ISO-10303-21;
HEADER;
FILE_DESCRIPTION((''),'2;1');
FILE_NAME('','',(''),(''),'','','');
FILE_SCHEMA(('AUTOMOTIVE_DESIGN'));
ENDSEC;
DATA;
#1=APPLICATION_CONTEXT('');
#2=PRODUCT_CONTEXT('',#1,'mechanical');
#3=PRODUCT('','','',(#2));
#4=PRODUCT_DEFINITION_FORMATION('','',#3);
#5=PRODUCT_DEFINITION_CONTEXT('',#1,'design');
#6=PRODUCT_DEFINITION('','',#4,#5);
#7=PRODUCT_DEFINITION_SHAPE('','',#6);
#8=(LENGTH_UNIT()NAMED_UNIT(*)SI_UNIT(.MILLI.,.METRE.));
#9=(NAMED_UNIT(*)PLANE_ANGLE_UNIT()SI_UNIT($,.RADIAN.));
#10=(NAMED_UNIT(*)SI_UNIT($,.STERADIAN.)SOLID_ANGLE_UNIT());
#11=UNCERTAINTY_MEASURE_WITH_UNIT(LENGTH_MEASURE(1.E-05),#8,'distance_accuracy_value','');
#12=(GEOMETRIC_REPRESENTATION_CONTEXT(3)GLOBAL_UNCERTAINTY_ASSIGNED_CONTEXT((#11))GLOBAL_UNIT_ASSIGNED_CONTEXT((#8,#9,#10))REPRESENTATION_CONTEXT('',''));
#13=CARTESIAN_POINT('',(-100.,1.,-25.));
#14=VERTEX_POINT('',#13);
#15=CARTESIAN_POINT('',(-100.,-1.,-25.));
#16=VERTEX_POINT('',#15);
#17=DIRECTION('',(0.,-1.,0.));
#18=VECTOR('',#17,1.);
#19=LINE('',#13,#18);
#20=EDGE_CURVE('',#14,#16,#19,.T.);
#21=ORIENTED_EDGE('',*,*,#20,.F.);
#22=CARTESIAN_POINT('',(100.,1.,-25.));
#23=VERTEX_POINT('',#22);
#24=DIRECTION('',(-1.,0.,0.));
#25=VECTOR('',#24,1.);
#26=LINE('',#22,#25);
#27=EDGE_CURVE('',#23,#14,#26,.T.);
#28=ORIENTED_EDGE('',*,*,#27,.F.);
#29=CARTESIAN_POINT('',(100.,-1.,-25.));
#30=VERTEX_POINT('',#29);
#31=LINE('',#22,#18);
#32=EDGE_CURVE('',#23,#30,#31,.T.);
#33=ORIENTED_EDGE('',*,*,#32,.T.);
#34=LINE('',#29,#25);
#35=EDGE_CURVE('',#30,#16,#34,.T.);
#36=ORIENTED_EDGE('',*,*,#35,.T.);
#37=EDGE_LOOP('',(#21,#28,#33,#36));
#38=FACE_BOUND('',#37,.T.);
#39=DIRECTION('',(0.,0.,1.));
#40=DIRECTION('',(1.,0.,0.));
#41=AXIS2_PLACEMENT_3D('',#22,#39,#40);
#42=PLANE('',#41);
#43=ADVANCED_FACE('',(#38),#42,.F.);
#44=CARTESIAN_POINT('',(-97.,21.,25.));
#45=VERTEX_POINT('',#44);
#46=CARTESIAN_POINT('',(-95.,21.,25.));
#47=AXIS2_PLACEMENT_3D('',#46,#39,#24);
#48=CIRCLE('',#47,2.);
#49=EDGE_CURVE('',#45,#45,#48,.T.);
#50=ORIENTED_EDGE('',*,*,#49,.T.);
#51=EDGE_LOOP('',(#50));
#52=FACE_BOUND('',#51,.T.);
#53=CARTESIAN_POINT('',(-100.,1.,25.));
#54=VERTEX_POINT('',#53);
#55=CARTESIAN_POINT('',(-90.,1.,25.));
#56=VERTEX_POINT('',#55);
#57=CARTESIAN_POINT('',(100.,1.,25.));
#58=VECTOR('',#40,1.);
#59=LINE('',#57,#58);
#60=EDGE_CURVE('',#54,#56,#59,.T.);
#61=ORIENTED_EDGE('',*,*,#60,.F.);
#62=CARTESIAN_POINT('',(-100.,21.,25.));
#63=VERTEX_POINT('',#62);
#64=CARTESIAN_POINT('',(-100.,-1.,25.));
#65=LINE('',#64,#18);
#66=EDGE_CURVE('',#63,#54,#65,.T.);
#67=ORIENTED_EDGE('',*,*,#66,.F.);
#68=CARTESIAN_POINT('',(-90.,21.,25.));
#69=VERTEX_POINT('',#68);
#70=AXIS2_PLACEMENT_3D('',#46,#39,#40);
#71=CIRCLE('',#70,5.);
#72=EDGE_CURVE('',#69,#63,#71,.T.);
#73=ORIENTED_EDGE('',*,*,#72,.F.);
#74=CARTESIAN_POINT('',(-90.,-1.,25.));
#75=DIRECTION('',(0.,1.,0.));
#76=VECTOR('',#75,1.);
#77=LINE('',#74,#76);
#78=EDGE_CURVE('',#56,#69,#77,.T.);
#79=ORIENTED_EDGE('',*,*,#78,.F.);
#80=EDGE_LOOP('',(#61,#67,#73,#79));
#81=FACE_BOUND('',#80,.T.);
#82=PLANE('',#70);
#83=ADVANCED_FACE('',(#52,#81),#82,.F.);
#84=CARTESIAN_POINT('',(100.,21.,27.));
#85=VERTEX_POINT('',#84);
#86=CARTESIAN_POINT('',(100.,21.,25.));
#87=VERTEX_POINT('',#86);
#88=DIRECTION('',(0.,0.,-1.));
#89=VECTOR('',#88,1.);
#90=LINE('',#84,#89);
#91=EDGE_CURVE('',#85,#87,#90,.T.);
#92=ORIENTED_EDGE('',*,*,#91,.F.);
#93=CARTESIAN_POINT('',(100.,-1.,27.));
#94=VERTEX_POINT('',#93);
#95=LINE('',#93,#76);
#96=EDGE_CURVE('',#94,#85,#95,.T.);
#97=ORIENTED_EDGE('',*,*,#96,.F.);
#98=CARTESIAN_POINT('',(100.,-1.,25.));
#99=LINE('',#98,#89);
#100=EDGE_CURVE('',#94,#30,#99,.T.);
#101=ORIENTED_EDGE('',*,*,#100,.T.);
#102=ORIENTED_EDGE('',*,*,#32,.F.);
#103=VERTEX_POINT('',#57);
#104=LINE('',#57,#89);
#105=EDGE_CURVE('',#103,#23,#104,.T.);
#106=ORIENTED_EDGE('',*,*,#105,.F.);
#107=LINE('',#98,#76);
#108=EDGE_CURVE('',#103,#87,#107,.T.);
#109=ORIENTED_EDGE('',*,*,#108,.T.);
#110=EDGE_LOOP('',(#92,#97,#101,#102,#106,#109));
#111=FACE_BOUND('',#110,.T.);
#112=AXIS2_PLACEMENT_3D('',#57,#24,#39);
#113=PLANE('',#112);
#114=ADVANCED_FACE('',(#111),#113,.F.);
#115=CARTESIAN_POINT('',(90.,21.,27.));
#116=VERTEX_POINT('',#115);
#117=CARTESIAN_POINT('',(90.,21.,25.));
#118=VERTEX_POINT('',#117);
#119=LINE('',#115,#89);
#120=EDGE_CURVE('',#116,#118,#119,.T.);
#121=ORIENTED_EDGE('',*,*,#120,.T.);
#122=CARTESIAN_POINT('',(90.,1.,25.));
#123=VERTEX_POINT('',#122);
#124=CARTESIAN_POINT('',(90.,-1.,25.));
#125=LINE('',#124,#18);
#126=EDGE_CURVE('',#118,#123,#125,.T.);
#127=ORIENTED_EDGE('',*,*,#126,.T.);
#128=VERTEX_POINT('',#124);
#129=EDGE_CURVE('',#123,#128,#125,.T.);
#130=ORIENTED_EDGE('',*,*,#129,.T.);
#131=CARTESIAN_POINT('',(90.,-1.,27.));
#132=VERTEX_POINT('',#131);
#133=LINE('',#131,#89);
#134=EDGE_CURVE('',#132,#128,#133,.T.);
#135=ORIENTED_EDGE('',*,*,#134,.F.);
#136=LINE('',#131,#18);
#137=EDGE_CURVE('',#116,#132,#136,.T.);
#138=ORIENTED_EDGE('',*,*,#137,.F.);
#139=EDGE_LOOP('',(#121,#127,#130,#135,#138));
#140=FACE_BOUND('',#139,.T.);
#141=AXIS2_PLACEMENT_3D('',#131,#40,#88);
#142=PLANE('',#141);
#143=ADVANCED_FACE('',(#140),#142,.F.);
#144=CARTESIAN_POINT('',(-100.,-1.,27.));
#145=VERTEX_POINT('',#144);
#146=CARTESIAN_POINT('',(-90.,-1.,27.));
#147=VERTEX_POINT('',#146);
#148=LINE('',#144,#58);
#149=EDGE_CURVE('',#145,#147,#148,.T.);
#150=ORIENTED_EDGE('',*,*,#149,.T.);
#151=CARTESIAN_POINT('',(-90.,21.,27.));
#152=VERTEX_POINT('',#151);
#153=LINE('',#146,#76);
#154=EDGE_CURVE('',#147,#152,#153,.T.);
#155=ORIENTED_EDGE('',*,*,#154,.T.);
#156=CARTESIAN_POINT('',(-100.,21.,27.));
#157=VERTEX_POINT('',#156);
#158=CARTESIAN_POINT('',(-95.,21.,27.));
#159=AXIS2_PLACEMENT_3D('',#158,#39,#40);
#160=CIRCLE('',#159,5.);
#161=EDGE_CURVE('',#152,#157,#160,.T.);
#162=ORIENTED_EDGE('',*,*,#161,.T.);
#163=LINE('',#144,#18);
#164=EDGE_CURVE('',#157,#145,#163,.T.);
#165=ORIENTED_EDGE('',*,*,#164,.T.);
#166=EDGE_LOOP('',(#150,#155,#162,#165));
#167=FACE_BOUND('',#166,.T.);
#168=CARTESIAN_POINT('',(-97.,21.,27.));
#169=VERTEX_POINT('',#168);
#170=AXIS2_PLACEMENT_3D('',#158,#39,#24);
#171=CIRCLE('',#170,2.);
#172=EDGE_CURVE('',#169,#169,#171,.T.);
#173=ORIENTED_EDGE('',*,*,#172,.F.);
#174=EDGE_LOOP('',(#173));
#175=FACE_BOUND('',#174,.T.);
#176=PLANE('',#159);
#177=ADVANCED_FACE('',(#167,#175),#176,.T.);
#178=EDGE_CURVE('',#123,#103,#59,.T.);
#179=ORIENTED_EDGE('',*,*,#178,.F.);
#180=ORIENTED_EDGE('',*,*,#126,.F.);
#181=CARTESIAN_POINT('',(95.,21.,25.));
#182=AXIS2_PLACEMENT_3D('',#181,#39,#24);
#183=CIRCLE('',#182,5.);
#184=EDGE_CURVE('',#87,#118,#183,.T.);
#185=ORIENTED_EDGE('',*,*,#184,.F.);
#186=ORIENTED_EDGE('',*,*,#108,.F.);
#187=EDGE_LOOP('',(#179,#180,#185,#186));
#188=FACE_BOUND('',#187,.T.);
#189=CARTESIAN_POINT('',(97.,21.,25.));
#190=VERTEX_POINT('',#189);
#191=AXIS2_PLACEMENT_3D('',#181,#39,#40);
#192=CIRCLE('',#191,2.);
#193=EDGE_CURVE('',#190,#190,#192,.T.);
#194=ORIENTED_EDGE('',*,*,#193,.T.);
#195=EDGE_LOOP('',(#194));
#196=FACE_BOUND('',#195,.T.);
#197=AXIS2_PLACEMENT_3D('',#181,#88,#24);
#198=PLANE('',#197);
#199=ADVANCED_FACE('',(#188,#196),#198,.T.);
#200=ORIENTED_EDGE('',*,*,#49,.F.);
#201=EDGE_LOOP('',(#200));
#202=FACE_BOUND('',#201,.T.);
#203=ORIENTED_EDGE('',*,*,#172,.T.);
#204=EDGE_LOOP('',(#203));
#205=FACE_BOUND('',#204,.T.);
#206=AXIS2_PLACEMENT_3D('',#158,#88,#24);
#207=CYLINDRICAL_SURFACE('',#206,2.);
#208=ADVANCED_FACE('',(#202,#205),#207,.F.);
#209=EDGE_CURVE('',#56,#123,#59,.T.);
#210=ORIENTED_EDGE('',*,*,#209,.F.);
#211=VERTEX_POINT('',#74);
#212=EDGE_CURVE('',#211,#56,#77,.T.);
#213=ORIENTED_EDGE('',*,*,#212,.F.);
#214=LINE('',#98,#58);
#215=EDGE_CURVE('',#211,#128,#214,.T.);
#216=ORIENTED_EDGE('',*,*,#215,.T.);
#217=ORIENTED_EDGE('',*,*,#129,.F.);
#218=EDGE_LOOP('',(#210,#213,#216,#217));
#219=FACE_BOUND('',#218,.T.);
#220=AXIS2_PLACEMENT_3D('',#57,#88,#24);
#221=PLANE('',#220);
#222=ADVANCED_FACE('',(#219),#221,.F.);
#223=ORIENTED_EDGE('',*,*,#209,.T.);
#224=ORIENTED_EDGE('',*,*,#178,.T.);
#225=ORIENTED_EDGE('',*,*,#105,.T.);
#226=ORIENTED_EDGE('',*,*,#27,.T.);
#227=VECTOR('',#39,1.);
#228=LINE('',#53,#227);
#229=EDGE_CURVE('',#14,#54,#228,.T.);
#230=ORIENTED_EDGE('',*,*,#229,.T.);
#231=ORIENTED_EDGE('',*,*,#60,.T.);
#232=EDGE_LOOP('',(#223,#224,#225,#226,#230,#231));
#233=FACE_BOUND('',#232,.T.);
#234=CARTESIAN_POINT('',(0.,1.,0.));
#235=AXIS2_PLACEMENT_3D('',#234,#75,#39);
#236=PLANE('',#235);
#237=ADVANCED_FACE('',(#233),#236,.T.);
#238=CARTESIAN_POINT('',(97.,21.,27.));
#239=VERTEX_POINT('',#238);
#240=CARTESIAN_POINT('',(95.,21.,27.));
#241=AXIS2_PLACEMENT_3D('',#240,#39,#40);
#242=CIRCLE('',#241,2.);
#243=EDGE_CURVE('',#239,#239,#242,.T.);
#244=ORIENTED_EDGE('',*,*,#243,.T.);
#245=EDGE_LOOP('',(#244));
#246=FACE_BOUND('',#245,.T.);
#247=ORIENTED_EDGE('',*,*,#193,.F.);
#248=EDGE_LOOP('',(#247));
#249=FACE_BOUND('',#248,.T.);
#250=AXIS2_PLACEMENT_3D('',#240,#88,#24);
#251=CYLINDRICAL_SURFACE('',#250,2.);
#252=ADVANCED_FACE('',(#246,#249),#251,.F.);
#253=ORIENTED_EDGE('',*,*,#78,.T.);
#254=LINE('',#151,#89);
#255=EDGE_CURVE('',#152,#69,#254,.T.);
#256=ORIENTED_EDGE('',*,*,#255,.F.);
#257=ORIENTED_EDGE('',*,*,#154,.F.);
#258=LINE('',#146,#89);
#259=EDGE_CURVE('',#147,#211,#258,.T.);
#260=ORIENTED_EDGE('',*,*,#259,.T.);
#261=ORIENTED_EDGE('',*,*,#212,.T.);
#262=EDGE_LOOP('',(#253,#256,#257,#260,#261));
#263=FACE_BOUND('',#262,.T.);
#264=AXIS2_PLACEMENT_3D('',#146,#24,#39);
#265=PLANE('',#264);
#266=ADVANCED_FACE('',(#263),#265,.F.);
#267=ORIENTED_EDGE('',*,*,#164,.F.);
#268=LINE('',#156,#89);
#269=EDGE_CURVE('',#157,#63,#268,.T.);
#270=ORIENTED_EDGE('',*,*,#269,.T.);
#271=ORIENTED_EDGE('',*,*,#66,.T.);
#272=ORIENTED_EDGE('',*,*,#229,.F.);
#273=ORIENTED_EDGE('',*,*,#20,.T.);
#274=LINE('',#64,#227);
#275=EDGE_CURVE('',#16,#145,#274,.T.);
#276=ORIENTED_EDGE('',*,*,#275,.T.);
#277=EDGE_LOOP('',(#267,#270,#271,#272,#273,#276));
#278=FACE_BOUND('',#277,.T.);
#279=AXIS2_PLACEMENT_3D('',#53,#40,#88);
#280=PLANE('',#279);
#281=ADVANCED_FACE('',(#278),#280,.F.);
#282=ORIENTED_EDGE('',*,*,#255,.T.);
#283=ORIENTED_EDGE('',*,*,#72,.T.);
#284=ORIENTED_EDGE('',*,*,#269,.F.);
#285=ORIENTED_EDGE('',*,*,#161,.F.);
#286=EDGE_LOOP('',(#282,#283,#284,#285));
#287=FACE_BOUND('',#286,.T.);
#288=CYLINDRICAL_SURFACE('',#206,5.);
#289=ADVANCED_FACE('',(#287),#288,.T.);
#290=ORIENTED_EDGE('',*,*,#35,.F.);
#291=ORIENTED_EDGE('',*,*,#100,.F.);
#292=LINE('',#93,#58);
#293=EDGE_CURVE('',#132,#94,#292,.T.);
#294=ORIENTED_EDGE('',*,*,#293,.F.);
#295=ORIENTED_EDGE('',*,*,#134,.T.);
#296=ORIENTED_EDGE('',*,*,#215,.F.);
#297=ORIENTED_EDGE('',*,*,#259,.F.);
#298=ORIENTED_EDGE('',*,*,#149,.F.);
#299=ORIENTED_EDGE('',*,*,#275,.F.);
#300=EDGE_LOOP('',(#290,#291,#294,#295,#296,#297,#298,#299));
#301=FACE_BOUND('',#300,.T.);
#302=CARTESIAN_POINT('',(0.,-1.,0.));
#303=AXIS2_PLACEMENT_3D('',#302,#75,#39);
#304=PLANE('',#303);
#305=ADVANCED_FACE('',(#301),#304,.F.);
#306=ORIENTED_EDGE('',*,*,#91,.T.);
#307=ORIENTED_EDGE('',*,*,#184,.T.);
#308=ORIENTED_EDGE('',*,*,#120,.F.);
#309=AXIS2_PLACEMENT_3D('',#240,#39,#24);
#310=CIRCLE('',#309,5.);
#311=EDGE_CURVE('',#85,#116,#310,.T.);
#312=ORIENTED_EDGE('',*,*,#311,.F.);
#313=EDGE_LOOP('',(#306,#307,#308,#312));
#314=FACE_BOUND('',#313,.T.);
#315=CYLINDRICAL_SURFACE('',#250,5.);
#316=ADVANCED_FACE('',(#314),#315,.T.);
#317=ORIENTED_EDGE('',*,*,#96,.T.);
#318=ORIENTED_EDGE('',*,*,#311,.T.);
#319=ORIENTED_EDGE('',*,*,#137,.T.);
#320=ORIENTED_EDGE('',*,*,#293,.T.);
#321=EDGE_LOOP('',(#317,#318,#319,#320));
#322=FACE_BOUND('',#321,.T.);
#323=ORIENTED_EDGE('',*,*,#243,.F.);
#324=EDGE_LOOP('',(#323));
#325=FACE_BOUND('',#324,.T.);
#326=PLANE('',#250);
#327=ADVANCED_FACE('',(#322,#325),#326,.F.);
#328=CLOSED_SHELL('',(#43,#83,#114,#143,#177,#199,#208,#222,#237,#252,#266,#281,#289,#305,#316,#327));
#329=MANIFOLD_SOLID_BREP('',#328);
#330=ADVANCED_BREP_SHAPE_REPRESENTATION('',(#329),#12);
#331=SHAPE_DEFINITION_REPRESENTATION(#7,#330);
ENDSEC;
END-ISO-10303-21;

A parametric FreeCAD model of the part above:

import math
import FreeCAD as App
import Part
import Sketcher

V = App.Vector


def add_polygon(sketch, points):
    """Adds a closed chain of lines whose ends are joined by coincident constraints."""
    first, n = sketch.GeometryCount, len(points)
    for a, b in zip(points, points[1:] + points[:1]):
        sketch.addGeometry(Part.LineSegment(App.Vector(*a, 0), App.Vector(*b, 0)), False)
    for i in range(n):
        sketch.addConstraint(Sketcher.Constraint("Coincident", first + i, 2, first + (i + 1) % n, 1))

doc = App.newDocument("Part")
body = doc.addObject("PartDesign::Body", "Body")

sketch1 = doc.addObject("Sketcher::SketchObject", "Sketch")
body.addObject(sketch1)
sketch1.AttachmentSupport = (doc.XZ_Plane, [""])
sketch1.MapMode = "FlatFace"
add_polygon(sketch1, [(-100, -25), (-100, 25), (100, 25), (100, -25)])
sketch1.addConstraint([
    Sketcher.Constraint("Vertical", 0),
    Sketcher.Constraint("Horizontal", 1),
    Sketcher.Constraint("Vertical", 2),
    Sketcher.Constraint("Horizontal", 3),
    Sketcher.Constraint("Symmetric", 0, 2, 2, 2, -1, 1),
    Sketcher.Constraint("DistanceX", 1, 1, 1, 2, 200.0),
    Sketcher.Constraint("DistanceY", 0, 1, 0, 2, 50.0),
])
pad1 = doc.addObject("PartDesign::Pad", "Pad")
body.addObject(pad1)
pad1.Profile = sketch1
pad1.Length = 2
pad1.Midplane = True

sketch2 = doc.addObject("Sketcher::SketchObject", "Sketch001")
body.addObject(sketch2)
sketch2.AttachmentSupport = (doc.XY_Plane, [""])
sketch2.MapMode = "FlatFace"
sketch2.AttachmentOffset = App.Placement(V(0, 0, 25), App.Rotation())
sketch2.addGeometry([
    Part.LineSegment(V(90, -1, 0), V(100, -1, 0)),
    Part.LineSegment(V(100, -1, 0), V(100, 21, 0)),
    Part.ArcOfCircle(Part.Circle(V(95, 21, 0), V(0, 0, 1), 5), math.radians(0), math.radians(180)),
    Part.LineSegment(V(90, 21, 0), V(90, -1, 0)),
    Part.Circle(V(95, 21, 0), V(0, 0, 1), 2),
    Part.LineSegment(V(-90, -1, 0), V(-90, 21, 0)),
    Part.ArcOfCircle(Part.Circle(V(-95, 21, 0), V(0, 0, 1), 5), math.radians(0), math.radians(180)),
    Part.LineSegment(V(-100, 21, 0), V(-100, -1, 0)),
    Part.LineSegment(V(-100, -1, 0), V(-90, -1, 0)),
    Part.Circle(V(-95, 21, 0), V(0, 0, 1), 2),
], False)
sketch2.addConstraint([
    Sketcher.Constraint("Coincident", 0, 2, 1, 1),
    Sketcher.Constraint("Tangent", 1, 2, 2, 1),
    Sketcher.Constraint("Tangent", 2, 2, 3, 1),
    Sketcher.Constraint("Coincident", 3, 2, 0, 1),
    Sketcher.Constraint("Tangent", 5, 2, 6, 1),
    Sketcher.Constraint("Tangent", 6, 2, 7, 1),
    Sketcher.Constraint("Coincident", 7, 2, 8, 1),
    Sketcher.Constraint("Coincident", 8, 2, 5, 1),
    Sketcher.Constraint("Horizontal", 0),
    Sketcher.Constraint("Vertical", 1),
    Sketcher.Constraint("Vertical", 3),
    Sketcher.Constraint("Vertical", 5),
    Sketcher.Constraint("Vertical", 7),
    Sketcher.Constraint("Horizontal", 8),
    Sketcher.Constraint("Coincident", 4, 3, 2, 3),
    Sketcher.Constraint("Coincident", 9, 3, 6, 3),
    Sketcher.Constraint("Equal", 2, 6),
    Sketcher.Constraint("Equal", 4, 9),
    Sketcher.Constraint("Symmetric", 2, 3, 6, 3, -2),
    Sketcher.Constraint("Horizontal", 3, 2, 7, 2),
    Sketcher.Constraint("Diameter", 4, 4.0),
    Sketcher.Constraint("Radius", 2, 5.0),
    Sketcher.Constraint("DistanceY", 1, 1, 1, 2, 22.0),
    Sketcher.Constraint("DistanceX", -1, 1, 2, 3, 95.0),
    Sketcher.Constraint("DistanceY", -1, 1, 2, 3, 21.0),
])
pad2 = doc.addObject("PartDesign::Pad", "Pad001")
body.addObject(pad2)
pad2.Profile = sketch2
pad2.Length = 2

doc.recompute()
